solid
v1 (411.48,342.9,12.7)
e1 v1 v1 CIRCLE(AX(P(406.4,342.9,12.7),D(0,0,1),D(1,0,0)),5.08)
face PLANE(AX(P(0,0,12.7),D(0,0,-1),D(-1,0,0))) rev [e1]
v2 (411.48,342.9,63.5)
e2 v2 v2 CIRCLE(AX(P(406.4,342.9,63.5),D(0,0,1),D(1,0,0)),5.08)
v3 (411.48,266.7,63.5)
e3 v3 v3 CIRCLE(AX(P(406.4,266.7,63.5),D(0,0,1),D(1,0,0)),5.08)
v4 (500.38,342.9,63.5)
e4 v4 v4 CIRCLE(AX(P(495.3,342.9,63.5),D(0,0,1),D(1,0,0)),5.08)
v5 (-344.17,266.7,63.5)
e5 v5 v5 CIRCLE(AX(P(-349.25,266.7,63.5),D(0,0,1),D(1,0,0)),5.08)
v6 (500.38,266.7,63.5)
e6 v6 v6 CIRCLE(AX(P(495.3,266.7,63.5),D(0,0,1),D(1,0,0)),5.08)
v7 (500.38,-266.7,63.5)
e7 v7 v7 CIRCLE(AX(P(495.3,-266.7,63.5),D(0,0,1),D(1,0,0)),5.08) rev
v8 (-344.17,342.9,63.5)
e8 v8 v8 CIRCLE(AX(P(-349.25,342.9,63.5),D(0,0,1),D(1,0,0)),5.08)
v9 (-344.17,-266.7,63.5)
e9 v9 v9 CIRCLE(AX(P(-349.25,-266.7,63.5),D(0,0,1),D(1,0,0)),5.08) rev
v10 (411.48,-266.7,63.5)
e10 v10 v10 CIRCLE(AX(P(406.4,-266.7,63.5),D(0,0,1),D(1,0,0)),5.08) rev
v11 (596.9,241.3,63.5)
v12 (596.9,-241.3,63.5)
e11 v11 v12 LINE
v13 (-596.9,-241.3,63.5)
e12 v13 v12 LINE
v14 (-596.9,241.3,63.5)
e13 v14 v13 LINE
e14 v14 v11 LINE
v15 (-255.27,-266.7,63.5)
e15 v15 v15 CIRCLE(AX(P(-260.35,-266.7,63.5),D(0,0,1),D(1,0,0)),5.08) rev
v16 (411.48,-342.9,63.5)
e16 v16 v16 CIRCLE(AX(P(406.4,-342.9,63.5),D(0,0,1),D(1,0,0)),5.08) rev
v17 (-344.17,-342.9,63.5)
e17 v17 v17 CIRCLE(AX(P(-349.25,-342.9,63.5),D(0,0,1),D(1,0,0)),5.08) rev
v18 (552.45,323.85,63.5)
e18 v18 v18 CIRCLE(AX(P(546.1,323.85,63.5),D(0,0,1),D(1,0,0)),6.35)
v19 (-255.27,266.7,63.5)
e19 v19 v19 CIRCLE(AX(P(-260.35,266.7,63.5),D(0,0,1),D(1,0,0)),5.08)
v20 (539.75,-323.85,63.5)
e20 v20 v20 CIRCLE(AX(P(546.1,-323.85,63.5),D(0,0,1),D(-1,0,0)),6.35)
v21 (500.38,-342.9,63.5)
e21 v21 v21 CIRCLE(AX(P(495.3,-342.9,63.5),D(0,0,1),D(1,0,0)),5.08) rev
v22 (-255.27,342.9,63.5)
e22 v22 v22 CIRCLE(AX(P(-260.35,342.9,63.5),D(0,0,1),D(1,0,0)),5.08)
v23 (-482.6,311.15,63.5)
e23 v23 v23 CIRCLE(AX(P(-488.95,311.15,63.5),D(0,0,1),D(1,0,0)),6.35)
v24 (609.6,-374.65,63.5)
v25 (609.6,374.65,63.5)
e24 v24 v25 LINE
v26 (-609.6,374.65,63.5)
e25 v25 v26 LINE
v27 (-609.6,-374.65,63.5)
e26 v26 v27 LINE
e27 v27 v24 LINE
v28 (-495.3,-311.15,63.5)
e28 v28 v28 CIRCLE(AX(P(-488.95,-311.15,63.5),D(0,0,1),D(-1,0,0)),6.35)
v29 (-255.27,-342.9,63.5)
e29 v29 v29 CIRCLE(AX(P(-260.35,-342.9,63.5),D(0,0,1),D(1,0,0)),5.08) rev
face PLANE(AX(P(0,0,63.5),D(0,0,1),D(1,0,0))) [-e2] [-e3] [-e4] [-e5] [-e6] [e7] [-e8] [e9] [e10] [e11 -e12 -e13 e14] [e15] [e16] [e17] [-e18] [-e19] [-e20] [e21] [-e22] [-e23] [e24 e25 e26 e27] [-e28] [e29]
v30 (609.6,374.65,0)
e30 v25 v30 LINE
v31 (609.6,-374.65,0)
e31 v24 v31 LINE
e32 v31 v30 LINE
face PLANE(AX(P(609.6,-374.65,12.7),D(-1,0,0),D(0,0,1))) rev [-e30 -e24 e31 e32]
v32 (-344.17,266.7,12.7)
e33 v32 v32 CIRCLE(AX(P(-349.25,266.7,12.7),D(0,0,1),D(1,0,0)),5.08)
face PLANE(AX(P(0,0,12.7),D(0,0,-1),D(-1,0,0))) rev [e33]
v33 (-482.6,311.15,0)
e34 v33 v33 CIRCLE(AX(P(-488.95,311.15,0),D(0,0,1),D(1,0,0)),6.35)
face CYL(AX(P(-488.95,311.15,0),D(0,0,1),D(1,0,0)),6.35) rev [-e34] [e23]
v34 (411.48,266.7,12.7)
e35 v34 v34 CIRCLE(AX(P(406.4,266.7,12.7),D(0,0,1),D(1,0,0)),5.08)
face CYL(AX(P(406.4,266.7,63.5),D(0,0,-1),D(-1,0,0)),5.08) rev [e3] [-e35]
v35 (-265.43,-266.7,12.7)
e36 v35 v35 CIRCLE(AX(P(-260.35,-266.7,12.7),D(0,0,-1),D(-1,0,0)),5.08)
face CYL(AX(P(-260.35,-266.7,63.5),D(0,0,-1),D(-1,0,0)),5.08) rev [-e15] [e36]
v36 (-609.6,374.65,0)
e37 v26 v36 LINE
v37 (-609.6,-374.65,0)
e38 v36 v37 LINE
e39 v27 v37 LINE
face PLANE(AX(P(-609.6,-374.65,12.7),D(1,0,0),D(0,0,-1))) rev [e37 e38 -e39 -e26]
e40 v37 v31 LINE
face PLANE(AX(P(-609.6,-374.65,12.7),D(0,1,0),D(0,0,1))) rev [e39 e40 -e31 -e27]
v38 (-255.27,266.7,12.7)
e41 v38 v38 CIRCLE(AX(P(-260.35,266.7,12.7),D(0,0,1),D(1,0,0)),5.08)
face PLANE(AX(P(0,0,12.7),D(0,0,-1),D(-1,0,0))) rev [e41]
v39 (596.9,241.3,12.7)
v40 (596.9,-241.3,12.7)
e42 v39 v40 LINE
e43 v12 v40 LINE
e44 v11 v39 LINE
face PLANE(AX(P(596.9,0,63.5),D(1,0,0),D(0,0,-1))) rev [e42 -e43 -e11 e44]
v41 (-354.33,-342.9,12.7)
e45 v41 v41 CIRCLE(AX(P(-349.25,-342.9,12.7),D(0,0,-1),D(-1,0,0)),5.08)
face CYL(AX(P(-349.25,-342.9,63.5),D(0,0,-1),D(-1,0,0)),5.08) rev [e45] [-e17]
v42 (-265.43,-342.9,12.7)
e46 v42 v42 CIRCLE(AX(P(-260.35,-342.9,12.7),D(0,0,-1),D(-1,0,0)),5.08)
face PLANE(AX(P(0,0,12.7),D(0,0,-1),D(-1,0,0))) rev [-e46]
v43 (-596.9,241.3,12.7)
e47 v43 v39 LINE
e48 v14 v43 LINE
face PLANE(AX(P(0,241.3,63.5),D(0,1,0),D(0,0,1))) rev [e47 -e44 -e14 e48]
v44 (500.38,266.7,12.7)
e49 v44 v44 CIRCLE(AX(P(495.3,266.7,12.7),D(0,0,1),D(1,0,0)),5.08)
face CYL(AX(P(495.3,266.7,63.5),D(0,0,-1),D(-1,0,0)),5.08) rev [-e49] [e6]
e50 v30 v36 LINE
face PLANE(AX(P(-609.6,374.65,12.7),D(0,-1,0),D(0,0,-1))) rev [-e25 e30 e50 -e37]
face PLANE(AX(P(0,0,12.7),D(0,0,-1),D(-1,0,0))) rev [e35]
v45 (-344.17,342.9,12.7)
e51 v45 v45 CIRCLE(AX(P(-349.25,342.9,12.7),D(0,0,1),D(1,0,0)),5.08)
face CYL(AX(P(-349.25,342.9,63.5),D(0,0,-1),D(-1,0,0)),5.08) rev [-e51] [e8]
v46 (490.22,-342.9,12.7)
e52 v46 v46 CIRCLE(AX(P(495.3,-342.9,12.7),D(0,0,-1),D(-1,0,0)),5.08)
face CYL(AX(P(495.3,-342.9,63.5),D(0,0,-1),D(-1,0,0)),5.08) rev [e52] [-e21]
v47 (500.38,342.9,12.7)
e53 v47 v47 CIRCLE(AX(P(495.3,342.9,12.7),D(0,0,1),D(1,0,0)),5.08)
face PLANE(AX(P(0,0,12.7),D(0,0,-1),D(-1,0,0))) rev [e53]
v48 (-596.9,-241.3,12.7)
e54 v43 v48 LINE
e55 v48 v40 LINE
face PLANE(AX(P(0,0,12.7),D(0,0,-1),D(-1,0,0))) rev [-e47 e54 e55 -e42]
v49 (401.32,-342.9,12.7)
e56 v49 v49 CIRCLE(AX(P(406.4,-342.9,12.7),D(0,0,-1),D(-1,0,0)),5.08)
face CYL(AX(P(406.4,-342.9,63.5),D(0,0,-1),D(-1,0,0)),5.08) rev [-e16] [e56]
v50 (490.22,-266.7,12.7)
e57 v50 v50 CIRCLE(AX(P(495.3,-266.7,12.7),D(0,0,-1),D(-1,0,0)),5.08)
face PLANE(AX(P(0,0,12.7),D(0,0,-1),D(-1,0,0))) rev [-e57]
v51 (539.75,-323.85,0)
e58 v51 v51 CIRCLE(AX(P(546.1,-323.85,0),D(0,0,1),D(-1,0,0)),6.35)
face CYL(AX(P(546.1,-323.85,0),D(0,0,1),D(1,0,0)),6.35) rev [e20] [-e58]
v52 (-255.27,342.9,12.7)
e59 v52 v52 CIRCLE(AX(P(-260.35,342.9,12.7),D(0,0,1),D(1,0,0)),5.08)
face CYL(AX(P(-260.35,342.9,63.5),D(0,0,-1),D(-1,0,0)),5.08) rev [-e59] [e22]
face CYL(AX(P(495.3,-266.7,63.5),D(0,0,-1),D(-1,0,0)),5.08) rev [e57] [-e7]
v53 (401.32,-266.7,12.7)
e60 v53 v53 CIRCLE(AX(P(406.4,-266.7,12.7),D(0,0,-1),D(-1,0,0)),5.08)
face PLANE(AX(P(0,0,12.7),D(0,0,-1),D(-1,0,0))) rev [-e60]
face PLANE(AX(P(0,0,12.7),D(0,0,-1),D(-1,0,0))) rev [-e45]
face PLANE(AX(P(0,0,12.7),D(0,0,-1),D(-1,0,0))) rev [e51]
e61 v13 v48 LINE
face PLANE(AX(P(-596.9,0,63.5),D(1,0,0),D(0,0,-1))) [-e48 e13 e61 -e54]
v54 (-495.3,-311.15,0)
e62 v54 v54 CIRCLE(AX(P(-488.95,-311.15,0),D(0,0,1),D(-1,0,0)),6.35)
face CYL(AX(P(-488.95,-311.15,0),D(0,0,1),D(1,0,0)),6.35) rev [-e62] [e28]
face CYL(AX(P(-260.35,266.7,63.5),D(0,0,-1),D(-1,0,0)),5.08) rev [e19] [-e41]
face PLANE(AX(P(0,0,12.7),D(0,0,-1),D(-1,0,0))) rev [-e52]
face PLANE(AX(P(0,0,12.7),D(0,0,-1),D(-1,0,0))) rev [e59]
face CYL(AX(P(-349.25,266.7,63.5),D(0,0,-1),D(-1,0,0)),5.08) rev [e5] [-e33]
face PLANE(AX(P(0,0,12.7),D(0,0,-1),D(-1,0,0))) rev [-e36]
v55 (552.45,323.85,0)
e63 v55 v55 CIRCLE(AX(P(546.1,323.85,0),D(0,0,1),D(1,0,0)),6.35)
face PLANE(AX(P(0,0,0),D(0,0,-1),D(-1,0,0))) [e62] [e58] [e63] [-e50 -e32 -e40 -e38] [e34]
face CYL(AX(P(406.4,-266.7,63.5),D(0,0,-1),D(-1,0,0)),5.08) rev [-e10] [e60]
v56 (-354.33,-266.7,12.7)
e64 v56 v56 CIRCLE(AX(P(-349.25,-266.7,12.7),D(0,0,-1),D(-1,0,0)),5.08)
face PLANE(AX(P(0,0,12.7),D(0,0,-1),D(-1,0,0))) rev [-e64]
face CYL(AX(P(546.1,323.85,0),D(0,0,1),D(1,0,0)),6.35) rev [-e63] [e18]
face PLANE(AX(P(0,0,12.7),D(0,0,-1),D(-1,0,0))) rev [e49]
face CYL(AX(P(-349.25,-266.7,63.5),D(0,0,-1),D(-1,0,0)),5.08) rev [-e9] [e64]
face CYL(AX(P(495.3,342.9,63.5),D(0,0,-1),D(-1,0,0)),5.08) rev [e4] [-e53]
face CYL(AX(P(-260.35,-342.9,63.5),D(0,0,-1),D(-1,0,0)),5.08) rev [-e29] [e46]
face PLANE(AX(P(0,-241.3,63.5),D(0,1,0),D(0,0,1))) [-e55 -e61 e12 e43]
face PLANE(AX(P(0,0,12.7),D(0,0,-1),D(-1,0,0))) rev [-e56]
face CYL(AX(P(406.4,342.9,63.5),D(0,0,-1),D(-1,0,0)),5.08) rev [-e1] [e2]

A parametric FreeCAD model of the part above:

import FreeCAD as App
import Part
import Sketcher

V = App.Vector
Q = App.Units.Quantity

doc = App.newDocument("Part")
body = doc.addObject("PartDesign::Body", "Body")

# Sketch on XY plane
sketch1 = doc.addObject("Sketcher::SketchObject", "Sketch")
body.addObject(sketch1)
sketch1.AttachmentSupport = (doc.XY_Plane, [""])
sketch1.MapMode = "FlatFace"
sketch1.addGeometry([
    Part.LineSegment(V(-610, 375, 0), V(-610, -375, 0)),
    Part.LineSegment(V(-610, -375, 0), V(610, -375, 0)),
    Part.LineSegment(V(610, -375, 0), V(610, 375, 0)),
    Part.LineSegment(V(610, 375, 0), V(-610, 375, 0)),
], False)
sketch1.addConstraint([
    Sketcher.Constraint("Coincident", 0, 2, 1, 1),
    Sketcher.Constraint("Coincident", 1, 2, 2, 1),
    Sketcher.Constraint("Coincident", 2, 2, 3, 1),
    Sketcher.Constraint("Coincident", 3, 2, 0, 1),
    Sketcher.Constraint("Vertical", 0),
    Sketcher.Constraint("Horizontal", 1),
    Sketcher.Constraint("Vertical", 2),
    Sketcher.Constraint("Horizontal", 3),
    Sketcher.Constraint("Symmetric", 0, 2, 2, 2, -1, 1),
    Sketcher.Constraint("DistanceX", 1, 1, 1, 2, Q("48 in")),
    Sketcher.Constraint("DistanceY", 0, 2, 0, 1, Q("29.5 in")),
])
pad1 = doc.addObject("PartDesign::Pad", "Pad")
body.addObject(pad1)
pad1.Profile = sketch1
pad1.Length = Q("0.5 in")

# Sketch on XY plane
sketch2 = doc.addObject("Sketcher::SketchObject", "Sketch001")
body.addObject(sketch2)
sketch2.AttachmentSupport = (doc.XY_Plane, [""])
sketch2.MapMode = "FlatFace"
sketch2.AttachmentOffset = App.Placement(V(0, 0, 0.5 * 25.4), App.Rotation())
sketch2.addGeometry([
    Part.LineSegment(V(-610, 375, 0), V(-610, -375, 0)),  # 0
    Part.LineSegment(V(-610, -375, 0), V(610, -375, 0)),  # 1
    Part.LineSegment(V(610, -375, 0), V(610, 375, 0)),  # 2
    Part.LineSegment(V(610, 375, 0), V(-610, 375, 0)),  # 3
    Part.Circle(V(-349, -343, 0), V(0, 0, 1), 5),  # 4
    Part.Circle(V(-349, -267, 0), V(0, 0, 1), 5),  # 5
    Part.Circle(V(-260, -343, 0), V(0, 0, 1), 5),  # 6
    Part.Circle(V(-260, -267, 0), V(0, 0, 1), 5),  # 7
    Part.Circle(V(406, -343, 0), V(0, 0, 1), 5),  # 8
    Part.Circle(V(406, -267, 0), V(0, 0, 1), 5),  # 9
    Part.Circle(V(495, -343, 0), V(0, 0, 1), 5),  # 10
    Part.Circle(V(495, -267, 0), V(0, 0, 1), 5),  # 11
    Part.LineSegment(V(597, -241, 0), V(-597, -241, 0)),  # 12
    Part.LineSegment(V(-597, -241, 0), V(-597, 241, 0)),  # 13
    Part.LineSegment(V(-597, 241, 0), V(597, 241, 0)),  # 14
    Part.LineSegment(V(597, 241, 0), V(597, -241, 0)),  # 15
    Part.Circle(V(-349, 267, 0), V(0, 0, 1), 5),  # 16
    Part.Circle(V(-349, 343, 0), V(0, 0, 1), 5),  # 17
    Part.Circle(V(-260, 267, 0), V(0, 0, 1), 5),  # 18
    Part.Circle(V(-260, 343, 0), V(0, 0, 1), 5),  # 19
    Part.Circle(V(406, 267, 0), V(0, 0, 1), 5),  # 20
    Part.Circle(V(406, 343, 0), V(0, 0, 1), 5),  # 21
    Part.Circle(V(495, 267, 0), V(0, 0, 1), 5),  # 22
    Part.Circle(V(495, 343, 0), V(0, 0, 1), 5),  # 23
], False)
sketch2.addConstraint([
    Sketcher.Constraint("Coincident", 0, 2, 1, 1),
    Sketcher.Constraint("Coincident", 1, 2, 2, 1),
    Sketcher.Constraint("Coincident", 2, 2, 3, 1),
    Sketcher.Constraint("Coincident", 3, 2, 0, 1),
    Sketcher.Constraint("Coincident", 12, 2, 13, 1),
    Sketcher.Constraint("Coincident", 13, 2, 14, 1),
    Sketcher.Constraint("Coincident", 14, 2, 15, 1),
    Sketcher.Constraint("Coincident", 15, 2, 12, 1),
    Sketcher.Constraint("Vertical", 0),
    Sketcher.Constraint("Horizontal", 1),
    Sketcher.Constraint("Vertical", 2),
    Sketcher.Constraint("Horizontal", 3),
    Sketcher.Constraint("Horizontal", 12),
    Sketcher.Constraint("Vertical", 13),
    Sketcher.Constraint("Horizontal", 14),
    Sketcher.Constraint("Vertical", 15),
    Sketcher.Constraint("Equal", 4, 5),
    Sketcher.Constraint("Equal", 5, 6),
    Sketcher.Constraint("Equal", 6, 7),
    Sketcher.Constraint("Equal", 7, 8),
    Sketcher.Constraint("Equal", 8, 9),
    Sketcher.Constraint("Equal", 9, 10),
    Sketcher.Constraint("Equal", 10, 11),
    Sketcher.Constraint("Equal", 11, 16),
    Sketcher.Constraint("Equal", 16, 17),
    Sketcher.Constraint("Equal", 17, 18),
    Sketcher.Constraint("Equal", 18, 19),
    Sketcher.Constraint("Equal", 19, 20),
    Sketcher.Constraint("Equal", 20, 21),
    Sketcher.Constraint("Equal", 21, 22),
    Sketcher.Constraint("Equal", 22, 23),
    Sketcher.Constraint("Symmetric", 0, 2, 2, 2, -1, 1),
    Sketcher.Constraint("Symmetric", 12, 2, 14, 2, -1, 1),
    Sketcher.Constraint("Symmetric", 5, 3, 16, 3, -1),
    Sketcher.Constraint("Symmetric", 4, 3, 17, 3, -1),
    Sketcher.Constraint("Symmetric", 7, 3, 18, 3, -1),
    Sketcher.Constraint("Symmetric", 6, 3, 19, 3, -1),
    Sketcher.Constraint("Symmetric", 9, 3, 20, 3, -1),
    Sketcher.Constraint("Symmetric", 8, 3, 21, 3, -1),
    Sketcher.Constraint("Symmetric", 11, 3, 22, 3, -1),
    Sketcher.Constraint("Symmetric", 10, 3, 23, 3, -1),
    Sketcher.Constraint("Horizontal", 4, 3, 6, 3),
    Sketcher.Constraint("Horizontal", 5, 3, 7, 3),
    Sketcher.Constraint("Horizontal", 6, 3, 8, 3),
    Sketcher.Constraint("Horizontal", 7, 3, 9, 3),
    Sketcher.Constraint("Horizontal", 8, 3, 10, 3),
    Sketcher.Constraint("Horizontal", 9, 3, 11, 3),
    Sketcher.Constraint("Vertical", 4, 3, 5, 3),
    Sketcher.Constraint("Vertical", 6, 3, 7, 3),
    Sketcher.Constraint("Vertical", 8, 3, 9, 3),
    Sketcher.Constraint("Vertical", 10, 3, 11, 3),
    Sketcher.Constraint("Diameter", 4, Q("0.4 in")),
    Sketcher.Constraint("DistanceX", 1, 1, 1, 2, Q("48 in")),
    Sketcher.Constraint("DistanceX", 12, 2, 12, 1, Q("47 in")),
    Sketcher.Constraint("DistanceY", 13, 1, 13, 2, Q("19 in")),
    Sketcher.Constraint("DistanceY", 0, 2, 0, 1, Q("29.5 in")),
    Sketcher.Constraint("DistanceX", -1, 1, 8, 3, Q("16 in")),
    Sketcher.Constraint("DistanceY", 4, 3, 5, 3, Q("3 in")),
    Sketcher.Constraint("DistanceY", 5, 3, 16, 3, Q("21 in")),
    Sketcher.Constraint("DistanceX", 22, 3, 14, 2, Q("4 in")),
    Sketcher.Constraint("DistanceX", 4, 3, 6, 3, Q("3.5 in")),
    Sketcher.Constraint("DistanceX", 4, 3, -1, 1, Q("13.75 in")),
])
pad2 = doc.addObject("PartDesign::Pad", "Pad001")
body.addObject(pad2)
pad2.Profile = sketch2
pad2.Length = Q("2 in")

# Sketch on XY plane
sketch3 = doc.addObject("Sketcher::SketchObject", "Sketch002")
body.addObject(sketch3)
sketch3.AttachmentSupport = (doc.XY_Plane, [""])
sketch3.MapMode = "FlatFace"
sketch3.AttachmentOffset = App.Placement(V(0, 0, 2.5 * 25.4), App.Rotation())
sketch3.addGeometry([
    Part.Circle(V(-489, 311, 0), V(0, 0, 1), 6),
    Part.Circle(V(546, 324, 0), V(0, 0, 1), 6),
    Part.Circle(V(546, -324, 0), V(0, 0, 1), 6),
    Part.Circle(V(-489, -311, 0), V(0, 0, 1), 6),
], False)
sketch3.addConstraint([
    Sketcher.Constraint("Equal", 0, 1),
    Sketcher.Constraint("Equal", 1, 2),
    Sketcher.Constraint("Equal", 2, 3),
    Sketcher.Constraint("Symmetric", 1, 3, 2, 3, -1),
    Sketcher.Constraint("Symmetric", 0, 3, 3, 3, -1),
    Sketcher.Constraint("Diameter", 0, Q("0.5 in")),
    Sketcher.Constraint("DistanceY", 2, 3, 0, 3, Q("25 in")),
    Sketcher.Constraint("DistanceX", -1, 1, 1, 3, Q("21.5 in")),
    Sketcher.Constraint("DistanceY", 0, 3, 1, 3, Q("0.5 in")),
    Sketcher.Constraint("DistanceX", 0, 3, -1, 1, Q("19.25 in")),
])
pocket1 = doc.addObject("PartDesign::Pocket", "Pocket")
body.addObject(pocket1)
pocket1.Profile = sketch3
pocket1.Type = "ThroughAll"

doc.recompute()
